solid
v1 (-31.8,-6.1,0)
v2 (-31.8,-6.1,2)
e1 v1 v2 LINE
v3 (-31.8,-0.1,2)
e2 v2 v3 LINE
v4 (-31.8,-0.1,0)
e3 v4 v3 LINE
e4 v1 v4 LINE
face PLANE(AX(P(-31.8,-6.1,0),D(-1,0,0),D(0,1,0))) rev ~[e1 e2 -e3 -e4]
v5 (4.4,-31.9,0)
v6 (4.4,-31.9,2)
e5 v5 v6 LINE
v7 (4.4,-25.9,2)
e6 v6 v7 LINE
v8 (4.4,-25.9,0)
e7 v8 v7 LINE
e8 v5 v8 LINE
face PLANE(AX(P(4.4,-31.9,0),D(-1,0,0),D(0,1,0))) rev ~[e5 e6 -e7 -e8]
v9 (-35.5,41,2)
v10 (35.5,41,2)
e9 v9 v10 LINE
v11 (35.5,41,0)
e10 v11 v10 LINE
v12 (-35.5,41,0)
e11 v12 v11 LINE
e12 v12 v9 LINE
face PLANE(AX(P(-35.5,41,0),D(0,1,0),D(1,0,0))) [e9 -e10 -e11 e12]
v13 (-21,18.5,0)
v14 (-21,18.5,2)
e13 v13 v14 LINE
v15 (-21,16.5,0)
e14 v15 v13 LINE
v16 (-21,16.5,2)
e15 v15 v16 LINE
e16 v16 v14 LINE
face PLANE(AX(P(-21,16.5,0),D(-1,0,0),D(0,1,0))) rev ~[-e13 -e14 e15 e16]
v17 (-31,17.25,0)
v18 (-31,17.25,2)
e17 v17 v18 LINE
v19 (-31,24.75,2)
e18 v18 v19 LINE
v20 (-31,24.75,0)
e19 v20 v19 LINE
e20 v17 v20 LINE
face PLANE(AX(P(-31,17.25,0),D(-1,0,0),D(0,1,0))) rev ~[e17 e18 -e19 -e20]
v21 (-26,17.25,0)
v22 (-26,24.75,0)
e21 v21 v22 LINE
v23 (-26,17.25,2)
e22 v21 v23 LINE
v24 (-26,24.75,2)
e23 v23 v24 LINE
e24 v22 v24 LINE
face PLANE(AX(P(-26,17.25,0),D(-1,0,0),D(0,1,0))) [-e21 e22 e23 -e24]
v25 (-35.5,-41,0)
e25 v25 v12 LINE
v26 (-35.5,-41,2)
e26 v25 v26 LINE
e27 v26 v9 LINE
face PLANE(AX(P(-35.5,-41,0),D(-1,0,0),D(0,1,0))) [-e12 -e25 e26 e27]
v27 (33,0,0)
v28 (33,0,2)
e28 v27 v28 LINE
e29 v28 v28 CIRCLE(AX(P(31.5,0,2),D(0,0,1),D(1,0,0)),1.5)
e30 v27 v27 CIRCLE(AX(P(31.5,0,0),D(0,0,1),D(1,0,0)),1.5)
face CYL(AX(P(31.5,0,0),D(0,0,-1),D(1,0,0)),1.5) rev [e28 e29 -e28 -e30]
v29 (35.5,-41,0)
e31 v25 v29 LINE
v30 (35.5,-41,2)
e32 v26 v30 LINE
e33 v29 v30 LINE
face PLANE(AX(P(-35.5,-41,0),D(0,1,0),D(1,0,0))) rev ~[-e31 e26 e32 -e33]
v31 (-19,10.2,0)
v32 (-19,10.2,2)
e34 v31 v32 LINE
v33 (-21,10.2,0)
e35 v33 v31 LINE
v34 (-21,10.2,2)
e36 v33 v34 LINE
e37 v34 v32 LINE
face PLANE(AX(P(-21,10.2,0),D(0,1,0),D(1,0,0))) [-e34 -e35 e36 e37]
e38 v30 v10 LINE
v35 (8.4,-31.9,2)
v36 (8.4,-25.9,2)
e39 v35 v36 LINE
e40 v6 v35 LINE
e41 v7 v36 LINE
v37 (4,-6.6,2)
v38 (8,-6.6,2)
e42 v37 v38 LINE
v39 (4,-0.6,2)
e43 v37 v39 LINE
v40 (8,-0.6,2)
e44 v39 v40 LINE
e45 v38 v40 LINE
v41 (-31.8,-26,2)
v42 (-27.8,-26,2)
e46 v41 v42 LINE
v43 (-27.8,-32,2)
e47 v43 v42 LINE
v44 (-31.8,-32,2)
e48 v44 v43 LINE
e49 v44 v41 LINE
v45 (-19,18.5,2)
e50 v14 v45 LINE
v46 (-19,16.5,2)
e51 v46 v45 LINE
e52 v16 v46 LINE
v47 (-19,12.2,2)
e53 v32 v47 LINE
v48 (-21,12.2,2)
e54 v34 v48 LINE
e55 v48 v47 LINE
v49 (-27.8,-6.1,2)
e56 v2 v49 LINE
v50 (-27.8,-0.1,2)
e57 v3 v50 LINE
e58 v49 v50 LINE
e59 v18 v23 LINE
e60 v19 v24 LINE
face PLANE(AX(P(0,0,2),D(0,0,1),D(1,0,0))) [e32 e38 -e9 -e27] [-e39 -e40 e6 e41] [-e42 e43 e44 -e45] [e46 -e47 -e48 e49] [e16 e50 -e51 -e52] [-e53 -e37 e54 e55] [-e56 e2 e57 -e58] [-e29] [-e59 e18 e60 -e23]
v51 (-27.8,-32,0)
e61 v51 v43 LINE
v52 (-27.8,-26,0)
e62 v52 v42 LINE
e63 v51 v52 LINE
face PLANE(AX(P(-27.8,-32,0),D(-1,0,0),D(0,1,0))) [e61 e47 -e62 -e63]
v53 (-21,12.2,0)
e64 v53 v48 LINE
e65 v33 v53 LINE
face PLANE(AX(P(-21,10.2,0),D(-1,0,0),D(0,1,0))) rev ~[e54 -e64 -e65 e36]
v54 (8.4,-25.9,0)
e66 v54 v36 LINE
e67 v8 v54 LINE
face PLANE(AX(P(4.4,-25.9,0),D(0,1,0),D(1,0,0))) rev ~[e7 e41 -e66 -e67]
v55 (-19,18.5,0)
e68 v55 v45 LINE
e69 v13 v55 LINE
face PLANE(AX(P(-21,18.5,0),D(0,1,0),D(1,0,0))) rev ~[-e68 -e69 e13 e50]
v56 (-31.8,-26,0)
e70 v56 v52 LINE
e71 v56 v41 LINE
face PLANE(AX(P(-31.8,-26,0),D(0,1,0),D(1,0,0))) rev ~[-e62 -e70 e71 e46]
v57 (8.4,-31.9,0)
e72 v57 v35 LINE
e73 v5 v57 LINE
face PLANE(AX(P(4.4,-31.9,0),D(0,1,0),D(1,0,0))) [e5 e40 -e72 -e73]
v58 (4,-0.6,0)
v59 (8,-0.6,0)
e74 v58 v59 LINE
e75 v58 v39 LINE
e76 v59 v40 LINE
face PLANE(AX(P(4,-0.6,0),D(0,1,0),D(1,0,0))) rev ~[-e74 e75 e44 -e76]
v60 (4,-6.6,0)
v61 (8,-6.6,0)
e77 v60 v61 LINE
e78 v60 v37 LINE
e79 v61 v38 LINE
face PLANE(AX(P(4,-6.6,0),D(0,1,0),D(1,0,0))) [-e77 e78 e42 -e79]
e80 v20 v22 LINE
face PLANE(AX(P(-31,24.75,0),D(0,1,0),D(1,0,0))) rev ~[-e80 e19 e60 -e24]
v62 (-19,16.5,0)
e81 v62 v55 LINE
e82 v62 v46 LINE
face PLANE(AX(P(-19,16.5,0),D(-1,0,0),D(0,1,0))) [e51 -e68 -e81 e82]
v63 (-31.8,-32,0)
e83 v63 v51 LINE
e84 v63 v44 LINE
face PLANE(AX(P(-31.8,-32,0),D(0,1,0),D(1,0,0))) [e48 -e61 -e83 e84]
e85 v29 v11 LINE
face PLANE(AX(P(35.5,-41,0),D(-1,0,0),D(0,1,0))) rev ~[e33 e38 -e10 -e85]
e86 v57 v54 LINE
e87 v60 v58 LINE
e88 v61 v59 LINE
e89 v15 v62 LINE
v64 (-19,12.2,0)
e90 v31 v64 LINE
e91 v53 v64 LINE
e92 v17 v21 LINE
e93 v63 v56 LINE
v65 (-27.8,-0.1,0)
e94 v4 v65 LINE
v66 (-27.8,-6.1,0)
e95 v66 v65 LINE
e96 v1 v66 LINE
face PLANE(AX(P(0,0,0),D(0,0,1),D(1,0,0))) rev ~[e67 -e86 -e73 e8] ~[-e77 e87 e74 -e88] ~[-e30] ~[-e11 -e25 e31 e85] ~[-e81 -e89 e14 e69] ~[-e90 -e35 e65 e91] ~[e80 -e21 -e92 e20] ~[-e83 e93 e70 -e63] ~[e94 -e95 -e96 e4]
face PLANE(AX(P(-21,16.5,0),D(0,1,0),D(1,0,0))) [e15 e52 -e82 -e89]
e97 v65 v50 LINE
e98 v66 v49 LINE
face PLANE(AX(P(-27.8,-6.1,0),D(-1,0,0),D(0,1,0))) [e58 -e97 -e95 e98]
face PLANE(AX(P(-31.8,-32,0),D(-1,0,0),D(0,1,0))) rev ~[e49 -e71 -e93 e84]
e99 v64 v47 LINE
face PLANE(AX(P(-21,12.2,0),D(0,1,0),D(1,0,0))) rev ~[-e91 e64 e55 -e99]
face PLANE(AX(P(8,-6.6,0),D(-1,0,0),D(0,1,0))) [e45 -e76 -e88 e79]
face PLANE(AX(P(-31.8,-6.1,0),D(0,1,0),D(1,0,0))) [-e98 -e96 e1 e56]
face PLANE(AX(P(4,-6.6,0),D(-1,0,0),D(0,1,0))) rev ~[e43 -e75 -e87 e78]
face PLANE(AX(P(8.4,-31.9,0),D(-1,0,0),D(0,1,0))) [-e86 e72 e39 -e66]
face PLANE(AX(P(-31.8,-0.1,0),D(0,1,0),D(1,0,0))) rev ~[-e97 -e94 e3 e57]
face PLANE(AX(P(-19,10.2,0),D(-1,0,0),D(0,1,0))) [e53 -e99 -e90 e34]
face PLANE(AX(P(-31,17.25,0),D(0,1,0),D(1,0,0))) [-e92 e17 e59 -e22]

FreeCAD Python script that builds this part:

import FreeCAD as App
import Part
import Sketcher

V = App.Vector
Q = App.Units.Quantity

doc = App.newDocument("Part")
body = doc.addObject("PartDesign::Body", "Body")

# Sketch on XY plane
sketch1 = body.newObject("Sketcher::SketchObject", "Sketch")
sketch1.AttachmentSupport = (doc.getObject("XY_Plane"), [""])
sketch1.MapMode = "FlatFace"
sketch1.addGeometry(Part.LineSegment(V(-35.5, 41, 0), V(-35.5, -41, 0)), False)
sketch1.addGeometry(Part.LineSegment(V(-35.5, -41, 0), V(35.5, -41, 0)), False)
sketch1.addGeometry(Part.LineSegment(V(35.5, -41, 0), V(35.5, 41, 0)), False)
sketch1.addGeometry(Part.LineSegment(V(35.5, 41, 0), V(-35.5, 41, 0)), False)
sketch1.addGeometry(Part.LineSegment(V(-27.8, -32, 0), V(-31.8, -32, 0)), False)
sketch1.addGeometry(Part.LineSegment(V(-31.8, -32, 0), V(-31.8, -26, 0)), False)
sketch1.addGeometry(Part.LineSegment(V(-31.8, -26, 0), V(-27.8, -26, 0)), False)
sketch1.addGeometry(Part.LineSegment(V(-27.8, -26, 0), V(-27.8, -32, 0)), False)
sketch1.addGeometry(Part.LineSegment(V(8.4, -31.9, 0), V(4.4, -31.9, 0)), False)
sketch1.addGeometry(Part.LineSegment(V(4.4, -31.9, 0), V(4.4, -25.9, 0)), False)
sketch1.addGeometry(Part.LineSegment(V(4.4, -25.9, 0), V(8.4, -25.9, 0)), False)
sketch1.addGeometry(Part.LineSegment(V(8.4, -25.9, 0), V(8.4, -31.9, 0)), False)
sketch1.addGeometry(Part.LineSegment(V(-27.8, -6.1, 0), V(-31.8, -6.1, 0)), False)
sketch1.addGeometry(Part.LineSegment(V(-31.8, -6.1, 0), V(-31.8, -0.1, 0)), False)
sketch1.addGeometry(Part.LineSegment(V(-31.8, -0.1, 0), V(-27.8, -0.1, 0)), False)
sketch1.addGeometry(Part.LineSegment(V(-27.8, -0.1, 0), V(-27.8, -6.1, 0)), False)
sketch1.addGeometry(Part.LineSegment(V(-19, 10.2, 0), V(-21, 10.2, 0)), False)
sketch1.addGeometry(Part.LineSegment(V(-21, 10.2, 0), V(-21, 12.2, 0)), False)
sketch1.addGeometry(Part.LineSegment(V(-21, 12.2, 0), V(-19, 12.2, 0)), False)
sketch1.addGeometry(Part.LineSegment(V(-19, 12.2, 0), V(-19, 10.2, 0)), False)
sketch1.addGeometry(Part.LineSegment(V(-19, 16.5, 0), V(-21, 16.5, 0)), False)
sketch1.addGeometry(Part.LineSegment(V(-21, 16.5, 0), V(-21, 18.5, 0)), False)
sketch1.addGeometry(Part.LineSegment(V(-21, 18.5, 0), V(-19, 18.5, 0)), False)
sketch1.addGeometry(Part.LineSegment(V(-19, 18.5, 0), V(-19, 16.5, 0)), False)
sketch1.addGeometry(Part.LineSegment(V(-26, 17.25, 0), V(-31, 17.25, 0)), False)
sketch1.addGeometry(Part.LineSegment(V(-31, 17.25, 0), V(-31, 24.75, 0)), False)
sketch1.addGeometry(Part.LineSegment(V(-31, 24.75, 0), V(-26, 24.75, 0)), False)
sketch1.addGeometry(Part.LineSegment(V(-26, 24.75, 0), V(-26, 17.25, 0)), False)
sketch1.addGeometry(Part.LineSegment(V(8, -6.6, 0), V(4, -6.6, 0)), False)
sketch1.addGeometry(Part.LineSegment(V(4, -6.6, 0), V(4, -0.6, 0)), False)
sketch1.addGeometry(Part.LineSegment(V(4, -0.6, 0), V(8, -0.6, 0)), False)
sketch1.addGeometry(Part.LineSegment(V(8, -0.6, 0), V(8, -6.6, 0)), False)
sketch1.addGeometry(Part.Circle(V(31.5, 0, 0), V(0, 0, 1), 1.5), False)
sketch1.addConstraint(Sketcher.Constraint("Coincident", 0, 2, 1, 1))
sketch1.addConstraint(Sketcher.Constraint("Coincident", 1, 2, 2, 1))
sketch1.addConstraint(Sketcher.Constraint("Coincident", 2, 2, 3, 1))
sketch1.addConstraint(Sketcher.Constraint("Coincident", 3, 2, 0, 1))
sketch1.addConstraint(Sketcher.Constraint("Coincident", 4, 2, 5, 1))
sketch1.addConstraint(Sketcher.Constraint("Coincident", 5, 2, 6, 1))
sketch1.addConstraint(Sketcher.Constraint("Coincident", 6, 2, 7, 1))
sketch1.addConstraint(Sketcher.Constraint("Coincident", 7, 2, 4, 1))
sketch1.addConstraint(Sketcher.Constraint("Coincident", 8, 2, 9, 1))
sketch1.addConstraint(Sketcher.Constraint("Coincident", 9, 2, 10, 1))
sketch1.addConstraint(Sketcher.Constraint("Coincident", 10, 2, 11, 1))
sketch1.addConstraint(Sketcher.Constraint("Coincident", 11, 2, 8, 1))
sketch1.addConstraint(Sketcher.Constraint("Coincident", 12, 2, 13, 1))
sketch1.addConstraint(Sketcher.Constraint("Coincident", 13, 2, 14, 1))
sketch1.addConstraint(Sketcher.Constraint("Coincident", 14, 2, 15, 1))
sketch1.addConstraint(Sketcher.Constraint("Coincident", 15, 2, 12, 1))
sketch1.addConstraint(Sketcher.Constraint("Coincident", 16, 2, 17, 1))
sketch1.addConstraint(Sketcher.Constraint("Coincident", 17, 2, 18, 1))
sketch1.addConstraint(Sketcher.Constraint("Coincident", 18, 2, 19, 1))
sketch1.addConstraint(Sketcher.Constraint("Coincident", 19, 2, 16, 1))
sketch1.addConstraint(Sketcher.Constraint("Coincident", 20, 2, 21, 1))
sketch1.addConstraint(Sketcher.Constraint("Coincident", 21, 2, 22, 1))
sketch1.addConstraint(Sketcher.Constraint("Coincident", 22, 2, 23, 1))
sketch1.addConstraint(Sketcher.Constraint("Coincident", 23, 2, 20, 1))
sketch1.addConstraint(Sketcher.Constraint("Coincident", 24, 2, 25, 1))
sketch1.addConstraint(Sketcher.Constraint("Coincident", 25, 2, 26, 1))
sketch1.addConstraint(Sketcher.Constraint("Coincident", 26, 2, 27, 1))
sketch1.addConstraint(Sketcher.Constraint("Coincident", 27, 2, 24, 1))
sketch1.addConstraint(Sketcher.Constraint("Coincident", 28, 2, 29, 1))
sketch1.addConstraint(Sketcher.Constraint("Coincident", 29, 2, 30, 1))
sketch1.addConstraint(Sketcher.Constraint("Coincident", 30, 2, 31, 1))
sketch1.addConstraint(Sketcher.Constraint("Coincident", 31, 2, 28, 1))
sketch1.addConstraint(Sketcher.Constraint("Vertical", 0))
sketch1.addConstraint(Sketcher.Constraint("Horizontal", 1))
sketch1.addConstraint(Sketcher.Constraint("Vertical", 2))
sketch1.addConstraint(Sketcher.Constraint("Horizontal", 3))
sketch1.addConstraint(Sketcher.Constraint("Horizontal", 4))
sketch1.addConstraint(Sketcher.Constraint("Vertical", 5))
sketch1.addConstraint(Sketcher.Constraint("Horizontal", 6))
sketch1.addConstraint(Sketcher.Constraint("Vertical", 7))
sketch1.addConstraint(Sketcher.Constraint("Horizontal", 8))
sketch1.addConstraint(Sketcher.Constraint("Vertical", 9))
sketch1.addConstraint(Sketcher.Constraint("Horizontal", 10))
sketch1.addConstraint(Sketcher.Constraint("Vertical", 11))
sketch1.addConstraint(Sketcher.Constraint("Horizontal", 12))
sketch1.addConstraint(Sketcher.Constraint("Vertical", 13))
sketch1.addConstraint(Sketcher.Constraint("Horizontal", 14))
sketch1.addConstraint(Sketcher.Constraint("Vertical", 15))
sketch1.addConstraint(Sketcher.Constraint("Horizontal", 16))
sketch1.addConstraint(Sketcher.Constraint("Vertical", 17))
sketch1.addConstraint(Sketcher.Constraint("Horizontal", 18))
sketch1.addConstraint(Sketcher.Constraint("Vertical", 19))
sketch1.addConstraint(Sketcher.Constraint("Horizontal", 20))
sketch1.addConstraint(Sketcher.Constraint("Vertical", 21))
sketch1.addConstraint(Sketcher.Constraint("Horizontal", 22))
sketch1.addConstraint(Sketcher.Constraint("Vertical", 23))
sketch1.addConstraint(Sketcher.Constraint("Horizontal", 24))
sketch1.addConstraint(Sketcher.Constraint("Vertical", 25))
sketch1.addConstraint(Sketcher.Constraint("Horizontal", 26))
sketch1.addConstraint(Sketcher.Constraint("Vertical", 27))
sketch1.addConstraint(Sketcher.Constraint("Horizontal", 28))
sketch1.addConstraint(Sketcher.Constraint("Vertical", 29))
sketch1.addConstraint(Sketcher.Constraint("Horizontal", 30))
sketch1.addConstraint(Sketcher.Constraint("Vertical", 31))
sketch1.addConstraint(Sketcher.Constraint("Symmetric", 0, 2, 2, 2, -1, 1))
sketch1.addConstraint(Sketcher.Constraint("PointOnObject", 32, 3, -1))
sketch1.addConstraint(Sketcher.Constraint("Vertical", 5, 2, 12, 2))
sketch1.addConstraint(Sketcher.Constraint("Vertical", 7, 2, 14, 2))
sketch1.addConstraint(Sketcher.Constraint("Vertical", 17, 2, 20, 2))
sketch1.addConstraint(Sketcher.Constraint("Vertical", 19, 2, 22, 2))
sketch1.addConstraint(Sketcher.Constraint("Equal", 6, 8))
sketch1.addConstraint(Sketcher.Constraint("Equal", 14, 28))
sketch1.addConstraint(Sketcher.Constraint("Equal", 7, 9))
sketch1.addConstraint(Sketcher.Constraint("Equal", 11, 13))
sketch1.addConstraint(Sketcher.Constraint("Equal", 22, 17))
sketch1.addConstraint(Sketcher.Constraint("Equal", 19, 21))
sketch1.addConstraint(Sketcher.Constraint("Equal", 15, 29))
sketch1.addConstraint(Sketcher.Constraint("Diameter", 32, Q("3 mm")))
sketch1.addConstraint(Sketcher.Constraint("DistanceX", 1, 1, 1, 2, Q("71 mm")))
sketch1.addConstraint(Sketcher.Constraint("DistanceX", 4, 2, 4, 1, Q("4 mm")))
sketch1.addConstraint(Sketcher.Constraint("DistanceX", 16, 2, 16, 1, Q("2 mm")))
sketch1.addConstraint(Sketcher.Constraint("DistanceX", 24, 2, 24, 1, Q("5 mm")))
sketch1.addConstraint(Sketcher.Constraint("DistanceY", 0, 2, 0, 1, Q("82 mm")))
sketch1.addConstraint(Sketcher.Constraint("DistanceY", 5, 1, 5, 2, Q("6 mm")))
sketch1.addConstraint(Sketcher.Constraint("DistanceY", 25, 1, 25, 2, Q("7.5 mm")))
sketch1.addConstraint(Sketcher.Constraint("DistanceY", 4, 2, -1, 1, Q("32 mm")))
sketch1.addConstraint(Sketcher.Constraint("DistanceX", 16, 2, -1, 1, Q("21 mm")))
sketch1.addConstraint(Sketcher.Constraint("DistanceX", 24, 2, -1, 1, Q("31 mm")))
sketch1.addConstraint(Sketcher.Constraint("DistanceX", -1, 1, 28, 2, Q("4 mm")))
sketch1.addConstraint(Sketcher.Constraint("DistanceX", 0, 2, 32, 3, Q("67 mm")))
sketch1.addConstraint(Sketcher.Constraint("DistanceX", 4, 2, -1, 1, Q("31.8 mm")))
sketch1.addConstraint(Sketcher.Constraint("DistanceX", -1, 1, 8, 2, Q("4.4 mm")))
sketch1.addConstraint(Sketcher.Constraint("DistanceY", 8, 2, -1, 1, Q("31.9 mm")))
sketch1.addConstraint(Sketcher.Constraint("DistanceY", 12, 2, -1, 1, Q("6.1 mm")))
sketch1.addConstraint(Sketcher.Constraint("DistanceY", -1, 1, 16, 2, Q("10.2 mm")))
sketch1.addConstraint(Sketcher.Constraint("DistanceY", -1, 1, 20, 2, Q("16.5 mm")))
sketch1.addConstraint(Sketcher.Constraint("DistanceY", 28, 2, -1, 1, Q("6.6 mm")))
sketch1.addConstraint(Sketcher.Constraint("DistanceY", -1, 1, 24, 2, Q("17.25 mm")))
pad1 = body.newObject("PartDesign::Pad", "Pad")
pad1.Profile = sketch1
pad1.Length = 2

doc.recompute()
